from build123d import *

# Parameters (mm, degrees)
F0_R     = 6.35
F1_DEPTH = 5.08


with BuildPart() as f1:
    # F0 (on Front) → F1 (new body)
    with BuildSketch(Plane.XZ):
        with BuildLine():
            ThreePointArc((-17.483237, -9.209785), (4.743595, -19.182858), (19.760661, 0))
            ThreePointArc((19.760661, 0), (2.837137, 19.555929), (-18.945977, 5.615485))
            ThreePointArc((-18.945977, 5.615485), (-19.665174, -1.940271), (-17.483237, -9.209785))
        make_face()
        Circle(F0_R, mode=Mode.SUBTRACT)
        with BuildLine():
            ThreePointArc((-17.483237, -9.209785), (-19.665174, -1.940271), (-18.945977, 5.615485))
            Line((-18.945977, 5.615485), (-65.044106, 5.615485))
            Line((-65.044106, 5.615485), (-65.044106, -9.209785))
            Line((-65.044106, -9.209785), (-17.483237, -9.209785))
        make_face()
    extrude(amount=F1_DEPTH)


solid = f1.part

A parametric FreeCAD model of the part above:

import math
import FreeCAD as App
import Part
import Sketcher
Q = App.Units.Quantity

doc = App.newDocument("Part")
body = doc.addObject("PartDesign::Body", "Body")

sketch1 = body.newObject("Sketcher::SketchObject", "Sketch")
sketch1.AttachmentSupport = (doc.getObject("XZ_Plane"), [""])
sketch1.MapMode = "FlatFace"
sketch1.addGeometry(Part.ArcOfCircle(Part.Circle(App.Vector(0, 0, 0), App.Vector(0, 0, 1), 19.760661), math.radians(-152.220726), math.radians(0.000001)), False)
sketch1.addGeometry(Part.ArcOfCircle(Part.Circle(App.Vector(0, 0, 0), App.Vector(0, 0, 1), 19.760661), math.radians(0.000001), math.radians(163.490461)), False)
sketch1.addGeometry(Part.LineSegment(App.Vector(-18.945977, 5.615485, 0), App.Vector(-65.044106, 5.615485, 0)), False)
sketch1.addGeometry(Part.LineSegment(App.Vector(-65.044106, 5.615485, 0), App.Vector(-65.044106, -9.209785, 0)), False)
sketch1.addGeometry(Part.LineSegment(App.Vector(-65.044106, -9.209785, 0), App.Vector(-17.483237, -9.209785, 0)), False)
sketch1.addGeometry(Part.Circle(App.Vector(0, 0, 0), App.Vector(0, 0, 1), 6.35), False)
sketch1.addConstraint(Sketcher.Constraint("Tangent", 0, 2, 1, 1))
sketch1.addConstraint(Sketcher.Constraint("Coincident", 1, 2, 2, 1))
sketch1.addConstraint(Sketcher.Constraint("Coincident", 2, 2, 3, 1))
sketch1.addConstraint(Sketcher.Constraint("Coincident", 3, 2, 4, 1))
sketch1.addConstraint(Sketcher.Constraint("Coincident", 4, 2, 0, 1))
sketch1.addConstraint(Sketcher.Constraint("Horizontal", 2))
sketch1.addConstraint(Sketcher.Constraint("Vertical", 3))
sketch1.addConstraint(Sketcher.Constraint("Horizontal", 4))
sketch1.addConstraint(Sketcher.Constraint("Coincident", 0, 3, -1, 1))
sketch1.addConstraint(Sketcher.Constraint("Coincident", 5, 3, -1, 1))
sketch1.addConstraint(Sketcher.Constraint("Equal", 0, 1))
sketch1.addConstraint(Sketcher.Constraint("PointOnObject", 0, 2, -1))
sketch1.addConstraint(Sketcher.Constraint("Diameter", 5, Q("0.5 in")))
sketch1.addConstraint(Sketcher.Constraint("Radius", 0, Q("19.760661 mm")))
sketch1.addConstraint(Sketcher.Constraint("DistanceX", 2, 2, 2, 1, Q("46.098129 mm")))
sketch1.addConstraint(Sketcher.Constraint("DistanceX", 4, 1, 4, 2, Q("47.560869 mm")))
sketch1.addConstraint(Sketcher.Constraint("DistanceY", 3, 2, 3, 1, Q("14.82527 mm")))
pad1 = body.newObject("PartDesign::Pad", "Pad")
pad1.Profile = sketch1
pad1.Length = Q("0.2 in")

doc.recompute()
